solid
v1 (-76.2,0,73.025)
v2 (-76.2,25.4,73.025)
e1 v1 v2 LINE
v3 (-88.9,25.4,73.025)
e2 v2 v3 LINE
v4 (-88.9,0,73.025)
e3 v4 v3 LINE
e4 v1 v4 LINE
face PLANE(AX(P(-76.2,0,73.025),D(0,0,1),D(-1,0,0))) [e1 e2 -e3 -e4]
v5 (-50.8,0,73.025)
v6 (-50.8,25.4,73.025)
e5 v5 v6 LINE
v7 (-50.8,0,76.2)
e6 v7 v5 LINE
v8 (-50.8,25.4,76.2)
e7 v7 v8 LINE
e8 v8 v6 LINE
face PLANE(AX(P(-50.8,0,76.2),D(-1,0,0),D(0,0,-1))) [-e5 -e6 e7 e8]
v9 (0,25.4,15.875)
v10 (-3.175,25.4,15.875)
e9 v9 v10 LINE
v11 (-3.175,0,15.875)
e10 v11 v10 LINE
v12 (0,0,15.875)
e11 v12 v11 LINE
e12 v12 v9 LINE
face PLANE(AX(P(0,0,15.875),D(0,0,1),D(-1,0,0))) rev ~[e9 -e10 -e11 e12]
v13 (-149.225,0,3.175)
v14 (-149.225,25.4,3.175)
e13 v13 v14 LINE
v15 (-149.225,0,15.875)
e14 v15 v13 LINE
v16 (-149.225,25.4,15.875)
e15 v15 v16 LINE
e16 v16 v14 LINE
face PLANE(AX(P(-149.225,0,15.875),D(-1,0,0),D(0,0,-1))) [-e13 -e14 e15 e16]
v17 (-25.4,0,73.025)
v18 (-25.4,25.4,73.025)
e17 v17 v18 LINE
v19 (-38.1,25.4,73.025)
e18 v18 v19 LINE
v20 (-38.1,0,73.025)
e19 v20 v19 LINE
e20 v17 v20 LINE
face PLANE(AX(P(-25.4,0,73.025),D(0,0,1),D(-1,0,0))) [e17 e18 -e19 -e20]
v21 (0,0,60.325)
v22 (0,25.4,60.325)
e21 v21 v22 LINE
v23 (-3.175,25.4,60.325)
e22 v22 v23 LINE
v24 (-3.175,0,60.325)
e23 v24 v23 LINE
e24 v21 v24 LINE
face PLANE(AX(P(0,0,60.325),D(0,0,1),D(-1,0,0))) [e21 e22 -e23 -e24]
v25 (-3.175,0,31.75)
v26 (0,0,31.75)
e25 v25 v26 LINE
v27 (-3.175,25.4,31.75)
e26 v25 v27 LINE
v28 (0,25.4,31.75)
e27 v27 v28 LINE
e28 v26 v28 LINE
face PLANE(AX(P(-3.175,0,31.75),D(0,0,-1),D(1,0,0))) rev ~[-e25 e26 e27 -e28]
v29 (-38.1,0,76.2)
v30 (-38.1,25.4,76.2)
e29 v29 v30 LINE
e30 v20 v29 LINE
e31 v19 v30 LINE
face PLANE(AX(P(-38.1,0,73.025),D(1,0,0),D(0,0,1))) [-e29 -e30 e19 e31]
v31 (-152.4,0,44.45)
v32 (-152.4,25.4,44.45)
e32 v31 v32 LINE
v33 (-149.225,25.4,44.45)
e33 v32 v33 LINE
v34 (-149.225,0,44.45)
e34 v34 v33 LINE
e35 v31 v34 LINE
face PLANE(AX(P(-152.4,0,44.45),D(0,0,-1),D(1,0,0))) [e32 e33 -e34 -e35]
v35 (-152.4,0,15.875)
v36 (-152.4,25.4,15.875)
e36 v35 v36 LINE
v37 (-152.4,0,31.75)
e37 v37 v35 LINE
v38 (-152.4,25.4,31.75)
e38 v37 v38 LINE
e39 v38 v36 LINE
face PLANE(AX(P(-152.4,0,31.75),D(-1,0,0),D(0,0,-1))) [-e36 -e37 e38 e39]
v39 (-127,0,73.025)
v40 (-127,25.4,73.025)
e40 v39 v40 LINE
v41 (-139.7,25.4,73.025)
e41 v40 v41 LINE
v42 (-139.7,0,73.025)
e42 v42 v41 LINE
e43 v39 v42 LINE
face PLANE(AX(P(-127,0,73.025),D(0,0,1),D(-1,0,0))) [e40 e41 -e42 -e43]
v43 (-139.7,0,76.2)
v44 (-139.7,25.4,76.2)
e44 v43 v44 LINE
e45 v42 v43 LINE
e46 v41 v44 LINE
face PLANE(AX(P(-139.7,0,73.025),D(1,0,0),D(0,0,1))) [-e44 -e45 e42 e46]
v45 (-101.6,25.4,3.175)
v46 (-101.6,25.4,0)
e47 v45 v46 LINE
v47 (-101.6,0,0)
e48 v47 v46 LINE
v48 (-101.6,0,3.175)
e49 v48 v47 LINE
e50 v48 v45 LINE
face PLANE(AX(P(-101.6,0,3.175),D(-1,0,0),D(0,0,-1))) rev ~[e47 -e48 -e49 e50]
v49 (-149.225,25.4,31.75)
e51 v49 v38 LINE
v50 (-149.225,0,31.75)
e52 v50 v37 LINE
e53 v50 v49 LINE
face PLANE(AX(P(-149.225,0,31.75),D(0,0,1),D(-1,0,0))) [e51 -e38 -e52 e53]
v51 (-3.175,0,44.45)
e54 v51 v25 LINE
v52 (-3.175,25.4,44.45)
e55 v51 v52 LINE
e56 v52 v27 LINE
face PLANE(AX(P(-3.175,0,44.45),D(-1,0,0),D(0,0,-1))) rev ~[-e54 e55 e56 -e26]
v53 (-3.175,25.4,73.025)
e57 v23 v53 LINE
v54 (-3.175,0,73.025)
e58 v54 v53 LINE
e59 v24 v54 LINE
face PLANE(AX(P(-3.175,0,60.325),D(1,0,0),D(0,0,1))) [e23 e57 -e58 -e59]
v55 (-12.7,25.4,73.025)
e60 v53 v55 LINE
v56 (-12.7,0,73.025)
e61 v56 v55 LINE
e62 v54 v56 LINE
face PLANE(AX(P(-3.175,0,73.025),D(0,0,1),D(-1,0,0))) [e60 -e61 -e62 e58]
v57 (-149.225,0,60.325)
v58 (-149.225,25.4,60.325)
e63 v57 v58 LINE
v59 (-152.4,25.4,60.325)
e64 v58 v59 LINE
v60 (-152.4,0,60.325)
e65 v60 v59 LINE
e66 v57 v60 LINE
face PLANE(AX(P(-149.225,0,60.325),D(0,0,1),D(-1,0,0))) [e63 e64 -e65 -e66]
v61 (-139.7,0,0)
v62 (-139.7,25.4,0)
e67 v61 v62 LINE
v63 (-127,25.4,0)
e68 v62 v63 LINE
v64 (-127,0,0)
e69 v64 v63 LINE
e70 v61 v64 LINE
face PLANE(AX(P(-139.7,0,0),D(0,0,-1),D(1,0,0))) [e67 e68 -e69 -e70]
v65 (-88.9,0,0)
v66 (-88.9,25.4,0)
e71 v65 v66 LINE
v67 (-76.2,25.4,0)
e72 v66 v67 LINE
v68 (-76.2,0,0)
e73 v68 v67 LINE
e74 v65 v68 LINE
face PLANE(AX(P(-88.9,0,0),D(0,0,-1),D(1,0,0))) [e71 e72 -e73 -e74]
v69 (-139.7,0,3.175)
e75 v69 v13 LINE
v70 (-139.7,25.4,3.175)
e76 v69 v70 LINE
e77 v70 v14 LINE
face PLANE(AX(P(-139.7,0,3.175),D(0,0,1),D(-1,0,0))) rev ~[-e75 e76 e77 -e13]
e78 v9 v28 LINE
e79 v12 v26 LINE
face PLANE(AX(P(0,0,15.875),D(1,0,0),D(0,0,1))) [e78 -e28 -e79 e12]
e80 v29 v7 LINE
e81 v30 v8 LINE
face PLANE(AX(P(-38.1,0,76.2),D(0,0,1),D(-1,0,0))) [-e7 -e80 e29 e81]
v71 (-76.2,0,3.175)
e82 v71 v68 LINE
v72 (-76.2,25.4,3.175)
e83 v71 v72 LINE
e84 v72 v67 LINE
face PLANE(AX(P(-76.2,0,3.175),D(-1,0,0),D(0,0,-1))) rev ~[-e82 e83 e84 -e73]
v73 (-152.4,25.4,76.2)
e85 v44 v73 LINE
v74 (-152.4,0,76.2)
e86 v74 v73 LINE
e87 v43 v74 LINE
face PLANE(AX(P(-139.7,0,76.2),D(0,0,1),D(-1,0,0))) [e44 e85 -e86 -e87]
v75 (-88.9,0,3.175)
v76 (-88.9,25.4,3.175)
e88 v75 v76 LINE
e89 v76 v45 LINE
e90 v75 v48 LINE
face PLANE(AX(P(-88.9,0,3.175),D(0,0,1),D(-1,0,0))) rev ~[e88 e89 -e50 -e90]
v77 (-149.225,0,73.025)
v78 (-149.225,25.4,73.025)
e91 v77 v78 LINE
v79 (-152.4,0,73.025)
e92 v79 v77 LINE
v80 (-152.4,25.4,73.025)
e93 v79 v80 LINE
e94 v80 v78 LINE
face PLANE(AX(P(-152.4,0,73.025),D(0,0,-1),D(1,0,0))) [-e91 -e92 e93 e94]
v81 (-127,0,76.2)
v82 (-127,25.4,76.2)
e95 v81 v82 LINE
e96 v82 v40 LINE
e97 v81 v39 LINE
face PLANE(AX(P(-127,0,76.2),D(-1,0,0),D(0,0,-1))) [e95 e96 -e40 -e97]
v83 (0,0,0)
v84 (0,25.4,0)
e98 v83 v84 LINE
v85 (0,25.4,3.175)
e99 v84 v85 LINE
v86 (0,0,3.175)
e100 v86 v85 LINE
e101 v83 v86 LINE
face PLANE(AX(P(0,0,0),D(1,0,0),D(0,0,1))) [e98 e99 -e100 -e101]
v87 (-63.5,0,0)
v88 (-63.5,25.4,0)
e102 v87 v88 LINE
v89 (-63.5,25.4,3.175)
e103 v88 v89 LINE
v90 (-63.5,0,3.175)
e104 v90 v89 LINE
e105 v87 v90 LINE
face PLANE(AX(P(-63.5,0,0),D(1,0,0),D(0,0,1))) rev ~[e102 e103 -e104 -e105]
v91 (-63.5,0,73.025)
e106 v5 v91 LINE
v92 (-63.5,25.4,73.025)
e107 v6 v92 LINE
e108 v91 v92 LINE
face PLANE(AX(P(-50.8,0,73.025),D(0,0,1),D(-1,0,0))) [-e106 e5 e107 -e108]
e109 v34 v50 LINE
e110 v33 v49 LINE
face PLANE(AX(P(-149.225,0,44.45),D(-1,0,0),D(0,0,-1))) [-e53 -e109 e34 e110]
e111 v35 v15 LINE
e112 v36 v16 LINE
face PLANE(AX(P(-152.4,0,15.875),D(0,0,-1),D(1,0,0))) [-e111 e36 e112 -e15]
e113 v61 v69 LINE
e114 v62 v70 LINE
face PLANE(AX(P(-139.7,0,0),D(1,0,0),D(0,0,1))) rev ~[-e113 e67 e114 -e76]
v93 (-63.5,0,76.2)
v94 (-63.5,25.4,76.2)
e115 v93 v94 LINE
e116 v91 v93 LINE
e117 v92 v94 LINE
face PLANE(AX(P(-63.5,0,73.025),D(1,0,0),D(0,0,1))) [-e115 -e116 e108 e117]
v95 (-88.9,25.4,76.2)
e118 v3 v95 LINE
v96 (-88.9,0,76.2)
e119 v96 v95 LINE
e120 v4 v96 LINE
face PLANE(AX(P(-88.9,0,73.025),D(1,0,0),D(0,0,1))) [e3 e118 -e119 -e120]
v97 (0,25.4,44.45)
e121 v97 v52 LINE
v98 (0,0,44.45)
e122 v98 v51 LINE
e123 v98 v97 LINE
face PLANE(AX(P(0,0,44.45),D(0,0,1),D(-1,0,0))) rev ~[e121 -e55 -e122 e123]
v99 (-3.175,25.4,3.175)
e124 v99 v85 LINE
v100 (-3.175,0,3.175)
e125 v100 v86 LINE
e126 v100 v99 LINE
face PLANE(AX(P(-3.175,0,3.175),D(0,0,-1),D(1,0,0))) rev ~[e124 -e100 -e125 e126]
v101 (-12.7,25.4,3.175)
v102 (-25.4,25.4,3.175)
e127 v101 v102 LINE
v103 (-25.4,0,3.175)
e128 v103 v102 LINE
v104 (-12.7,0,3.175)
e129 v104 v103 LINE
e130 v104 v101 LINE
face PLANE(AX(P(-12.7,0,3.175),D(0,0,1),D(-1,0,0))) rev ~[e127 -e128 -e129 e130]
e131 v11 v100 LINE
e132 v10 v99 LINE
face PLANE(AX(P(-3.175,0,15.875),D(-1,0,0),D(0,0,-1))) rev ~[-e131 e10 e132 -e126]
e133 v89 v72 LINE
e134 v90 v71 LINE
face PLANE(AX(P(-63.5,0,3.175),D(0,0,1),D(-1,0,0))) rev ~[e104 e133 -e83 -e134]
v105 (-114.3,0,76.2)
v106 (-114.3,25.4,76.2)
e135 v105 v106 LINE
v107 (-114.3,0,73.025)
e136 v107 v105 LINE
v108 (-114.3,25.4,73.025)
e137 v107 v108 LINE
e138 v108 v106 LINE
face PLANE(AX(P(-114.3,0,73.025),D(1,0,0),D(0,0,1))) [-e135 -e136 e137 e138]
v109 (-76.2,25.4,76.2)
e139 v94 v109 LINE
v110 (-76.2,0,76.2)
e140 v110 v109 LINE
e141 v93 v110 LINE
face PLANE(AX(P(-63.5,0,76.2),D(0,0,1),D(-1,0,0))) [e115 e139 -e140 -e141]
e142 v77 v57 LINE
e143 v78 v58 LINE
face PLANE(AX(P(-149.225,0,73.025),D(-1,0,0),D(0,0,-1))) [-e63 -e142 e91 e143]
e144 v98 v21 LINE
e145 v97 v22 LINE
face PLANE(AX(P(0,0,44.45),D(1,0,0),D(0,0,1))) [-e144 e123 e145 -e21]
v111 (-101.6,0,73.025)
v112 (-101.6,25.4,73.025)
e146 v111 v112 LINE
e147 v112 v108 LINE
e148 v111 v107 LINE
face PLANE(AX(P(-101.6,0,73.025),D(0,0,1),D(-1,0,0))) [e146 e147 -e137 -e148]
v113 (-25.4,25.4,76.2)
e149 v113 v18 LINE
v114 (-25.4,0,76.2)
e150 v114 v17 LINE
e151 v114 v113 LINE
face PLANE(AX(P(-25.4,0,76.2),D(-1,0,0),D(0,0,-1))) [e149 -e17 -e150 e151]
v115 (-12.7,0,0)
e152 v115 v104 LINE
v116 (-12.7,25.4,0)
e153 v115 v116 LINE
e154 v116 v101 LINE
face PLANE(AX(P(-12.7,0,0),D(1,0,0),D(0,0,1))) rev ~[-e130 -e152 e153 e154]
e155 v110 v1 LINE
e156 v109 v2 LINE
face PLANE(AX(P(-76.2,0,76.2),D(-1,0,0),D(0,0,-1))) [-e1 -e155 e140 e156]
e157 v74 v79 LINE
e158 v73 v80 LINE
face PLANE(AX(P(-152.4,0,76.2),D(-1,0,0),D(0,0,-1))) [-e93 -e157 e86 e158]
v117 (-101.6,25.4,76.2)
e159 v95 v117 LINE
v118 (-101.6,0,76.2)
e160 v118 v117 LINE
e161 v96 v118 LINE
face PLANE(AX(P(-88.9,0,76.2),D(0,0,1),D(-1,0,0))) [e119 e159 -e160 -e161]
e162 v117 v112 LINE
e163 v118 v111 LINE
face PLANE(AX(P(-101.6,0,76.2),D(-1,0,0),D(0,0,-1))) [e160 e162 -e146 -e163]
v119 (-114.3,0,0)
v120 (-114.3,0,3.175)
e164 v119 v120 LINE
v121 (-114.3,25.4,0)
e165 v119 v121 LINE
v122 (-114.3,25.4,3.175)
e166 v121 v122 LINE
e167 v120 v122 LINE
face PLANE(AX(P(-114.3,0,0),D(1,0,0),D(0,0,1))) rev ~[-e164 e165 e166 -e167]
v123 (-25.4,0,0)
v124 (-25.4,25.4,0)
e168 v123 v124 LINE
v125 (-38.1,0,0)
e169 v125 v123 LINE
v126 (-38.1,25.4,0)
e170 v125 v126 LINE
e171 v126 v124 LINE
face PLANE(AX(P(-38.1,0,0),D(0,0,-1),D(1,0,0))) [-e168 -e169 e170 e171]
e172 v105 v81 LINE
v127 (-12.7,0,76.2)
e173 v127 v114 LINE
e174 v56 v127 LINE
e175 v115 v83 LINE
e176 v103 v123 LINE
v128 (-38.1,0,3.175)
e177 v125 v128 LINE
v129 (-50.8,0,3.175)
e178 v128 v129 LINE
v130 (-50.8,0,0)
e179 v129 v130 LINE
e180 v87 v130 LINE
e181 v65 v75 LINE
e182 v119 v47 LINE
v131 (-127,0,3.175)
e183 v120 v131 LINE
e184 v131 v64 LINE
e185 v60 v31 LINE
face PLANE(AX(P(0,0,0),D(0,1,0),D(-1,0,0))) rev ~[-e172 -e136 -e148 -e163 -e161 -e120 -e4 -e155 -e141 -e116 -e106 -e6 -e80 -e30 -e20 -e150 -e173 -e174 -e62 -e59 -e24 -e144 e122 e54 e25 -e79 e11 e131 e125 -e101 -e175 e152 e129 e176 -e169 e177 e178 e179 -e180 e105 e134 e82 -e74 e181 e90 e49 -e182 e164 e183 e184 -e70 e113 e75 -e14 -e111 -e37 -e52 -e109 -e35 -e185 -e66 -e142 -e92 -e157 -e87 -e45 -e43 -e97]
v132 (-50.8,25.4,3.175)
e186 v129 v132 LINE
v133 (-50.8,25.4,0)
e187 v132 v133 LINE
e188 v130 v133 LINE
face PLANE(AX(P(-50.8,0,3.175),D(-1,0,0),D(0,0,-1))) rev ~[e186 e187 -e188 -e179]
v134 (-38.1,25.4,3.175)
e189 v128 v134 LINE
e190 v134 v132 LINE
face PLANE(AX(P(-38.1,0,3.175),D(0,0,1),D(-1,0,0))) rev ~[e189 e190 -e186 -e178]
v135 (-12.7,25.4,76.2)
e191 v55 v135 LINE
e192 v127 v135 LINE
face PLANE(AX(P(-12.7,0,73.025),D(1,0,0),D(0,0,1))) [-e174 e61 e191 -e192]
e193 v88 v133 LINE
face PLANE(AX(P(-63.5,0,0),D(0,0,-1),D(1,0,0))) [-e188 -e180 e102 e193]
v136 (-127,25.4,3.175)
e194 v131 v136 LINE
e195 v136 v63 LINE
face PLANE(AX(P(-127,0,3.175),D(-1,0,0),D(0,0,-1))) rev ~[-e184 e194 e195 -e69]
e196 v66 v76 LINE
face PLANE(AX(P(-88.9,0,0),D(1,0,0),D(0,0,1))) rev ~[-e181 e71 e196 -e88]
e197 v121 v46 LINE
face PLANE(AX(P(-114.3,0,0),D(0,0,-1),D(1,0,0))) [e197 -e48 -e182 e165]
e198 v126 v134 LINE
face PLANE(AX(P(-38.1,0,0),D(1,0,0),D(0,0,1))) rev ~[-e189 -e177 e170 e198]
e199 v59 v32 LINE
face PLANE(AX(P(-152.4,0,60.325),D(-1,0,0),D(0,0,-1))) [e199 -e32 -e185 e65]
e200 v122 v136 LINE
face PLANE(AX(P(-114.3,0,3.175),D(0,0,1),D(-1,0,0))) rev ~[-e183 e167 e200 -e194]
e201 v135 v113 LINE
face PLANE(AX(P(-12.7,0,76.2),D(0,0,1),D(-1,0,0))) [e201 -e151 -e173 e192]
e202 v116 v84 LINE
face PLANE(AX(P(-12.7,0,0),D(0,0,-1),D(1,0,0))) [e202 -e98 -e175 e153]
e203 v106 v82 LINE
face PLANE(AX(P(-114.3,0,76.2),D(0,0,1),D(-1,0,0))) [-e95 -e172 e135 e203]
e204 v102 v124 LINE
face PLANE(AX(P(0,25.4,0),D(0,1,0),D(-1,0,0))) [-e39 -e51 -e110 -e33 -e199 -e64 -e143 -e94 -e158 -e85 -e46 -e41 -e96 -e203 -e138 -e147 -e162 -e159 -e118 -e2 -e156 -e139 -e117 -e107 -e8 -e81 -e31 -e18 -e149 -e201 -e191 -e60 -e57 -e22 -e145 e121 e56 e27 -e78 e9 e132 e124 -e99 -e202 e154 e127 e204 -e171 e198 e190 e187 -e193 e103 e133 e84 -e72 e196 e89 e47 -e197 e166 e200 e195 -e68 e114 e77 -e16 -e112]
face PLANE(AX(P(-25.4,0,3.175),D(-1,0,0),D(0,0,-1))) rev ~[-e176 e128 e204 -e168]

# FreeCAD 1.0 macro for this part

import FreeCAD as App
import Part
import Sketcher
from FreeCAD import Vector
Q = App.Units.Quantity


def add_polygon(sketch, points):
    """Adds a closed chain of lines whose ends are joined by coincident constraints."""
    first, n = sketch.GeometryCount, len(points)
    for a, b in zip(points, points[1:] + points[:1]):
        sketch.addGeometry(Part.LineSegment(App.Vector(*a, 0), App.Vector(*b, 0)), False)
    for i in range(n):
        sketch.addConstraint(Sketcher.Constraint("Coincident", first + i, 2, first + (i + 1) % n, 1))

doc = App.newDocument("Part")
body = doc.addObject("PartDesign::Body", "Body")

sketch1 = doc.addObject("Sketcher::SketchObject", "Sketch")
body.addObject(sketch1)
sketch1.AttachmentSupport = (doc.XZ_Plane, [""])
sketch1.MapMode = "FlatFace"
add_polygon(sketch1, [(0, 3.2), (0, 0), (-12.7, 0), (-12.7, 3.2), (-25.4, 3.2), (-25.4, 0), (-38.1, 0), (-38.1, 3.2), (-50.8, 3.2), (-50.8, 0), (-63.5, 0), (-63.5, 3.2), (-76.2, 3.2), (-76.2, 0), (-88.9, 0), (-88.9, 3.2), (-101.6, 3.2), (-101.6, 0), (-114.3, 0), (-114.3, 3.2), (-127, 3.2), (-127, 0), (-139.7, 0), (-139.7, 3.2), (-149.2, 3.2), (-149.2, 15.9), (-152.4, 15.9), (-152.4, 31.8), (-149.2, 31.8), (-149.2, 44.5), (-152.4, 44.5), (-152.4, 60.3), (-149.2, 60.3), (-149.2, 73), (-152.4, 73), (-152.4, 76.2), (-139.7, 76.2), (-139.7, 73), (-127, 73), (-127, 76.2), (-114.3, 76.2), (-114.3, 73), (-101.6, 73), (-101.6, 76.2), (-88.9, 76.2), (-88.9, 73), (-76.2, 73), (-76.2, 76.2), (-63.5, 76.2), (-63.5, 73), (-50.8, 73), (-50.8, 76.2), (-38.1, 76.2), (-38.1, 73), (-25.4, 73), (-25.4, 76.2), (-12.7, 76.2), (-12.7, 73), (-3.2, 73), (-3.2, 60.3), (0, 60.3), (0, 44.5), (-3.2, 44.5), (-3.2, 31.8), (0, 31.8), (0, 15.9), (-3.2, 15.9), (-3.2, 3.2)])
sketch1.addConstraint([
    Sketcher.Constraint("Vertical", 0),
    Sketcher.Constraint("Horizontal", 1),
    Sketcher.Constraint("Vertical", 2),
    Sketcher.Constraint("Horizontal", 3),
    Sketcher.Constraint("Vertical", 4),
    Sketcher.Constraint("Horizontal", 5),
    Sketcher.Constraint("Vertical", 6),
    Sketcher.Constraint("Horizontal", 7),
    Sketcher.Constraint("Vertical", 8),
    Sketcher.Constraint("Horizontal", 9),
    Sketcher.Constraint("Vertical", 10),
    Sketcher.Constraint("Horizontal", 11),
    Sketcher.Constraint("Vertical", 12),
    Sketcher.Constraint("Horizontal", 13),
    Sketcher.Constraint("Vertical", 14),
    Sketcher.Constraint("Horizontal", 15),
    Sketcher.Constraint("Vertical", 16),
    Sketcher.Constraint("Horizontal", 17),
    Sketcher.Constraint("Vertical", 18),
    Sketcher.Constraint("Horizontal", 19),
    Sketcher.Constraint("Vertical", 20),
    Sketcher.Constraint("Horizontal", 21),
    Sketcher.Constraint("Vertical", 22),
    Sketcher.Constraint("Horizontal", 23),
    Sketcher.Constraint("Vertical", 24),
    Sketcher.Constraint("Horizontal", 25),
    Sketcher.Constraint("Vertical", 26),
    Sketcher.Constraint("Horizontal", 27),
    Sketcher.Constraint("Vertical", 28),
    Sketcher.Constraint("Horizontal", 29),
    Sketcher.Constraint("Vertical", 30),
    Sketcher.Constraint("Horizontal", 31),
    Sketcher.Constraint("Vertical", 32),
    Sketcher.Constraint("Horizontal", 33),
    Sketcher.Constraint("Vertical", 34),
    Sketcher.Constraint("Horizontal", 35),
    Sketcher.Constraint("Vertical", 36),
    Sketcher.Constraint("Horizontal", 37),
    Sketcher.Constraint("Vertical", 38),
    Sketcher.Constraint("Horizontal", 39),
    Sketcher.Constraint("Vertical", 40),
    Sketcher.Constraint("Horizontal", 41),
    Sketcher.Constraint("Vertical", 42),
    Sketcher.Constraint("Horizontal", 43),
    Sketcher.Constraint("Vertical", 44),
    Sketcher.Constraint("Horizontal", 45),
    Sketcher.Constraint("Vertical", 46),
    Sketcher.Constraint("Horizontal", 47),
    Sketcher.Constraint("Vertical", 48),
    Sketcher.Constraint("Horizontal", 49),
    Sketcher.Constraint("Vertical", 50),
    Sketcher.Constraint("Horizontal", 51),
    Sketcher.Constraint("Vertical", 52),
    Sketcher.Constraint("Horizontal", 53),
    Sketcher.Constraint("Vertical", 54),
    Sketcher.Constraint("Horizontal", 55),
    Sketcher.Constraint("Vertical", 56),
    Sketcher.Constraint("Horizontal", 57),
    Sketcher.Constraint("Vertical", 58),
    Sketcher.Constraint("Horizontal", 59),
    Sketcher.Constraint("Vertical", 60),
    Sketcher.Constraint("Horizontal", 61),
    Sketcher.Constraint("Vertical", 62),
    Sketcher.Constraint("Horizontal", 63),
    Sketcher.Constraint("Vertical", 64),
    Sketcher.Constraint("Horizontal", 65),
    Sketcher.Constraint("Vertical", 66),
    Sketcher.Constraint("Horizontal", 67),
    Sketcher.Constraint("Coincident", 0, 2, -1, 1),
    Sketcher.Constraint("PointOnObject", 4, 2, -1),
    Sketcher.Constraint("PointOnObject", 8, 2, -1),
    Sketcher.Constraint("PointOnObject", 12, 2, -1),
    Sketcher.Constraint("PointOnObject", 16, 2, -1),
    Sketcher.Constraint("PointOnObject", 20, 2, -1),
    Sketcher.Constraint("PointOnObject", 59, 2, -2),
    Sketcher.Constraint("PointOnObject", 63, 2, -2),
    Sketcher.Constraint("Horizontal", 3, 2, 6, 2),
    Sketcher.Constraint("Horizontal", 7, 2, 10, 2),
    Sketcher.Constraint("Horizontal", 11, 2, 14, 2),
    Sketcher.Constraint("Horizontal", 15, 2, 18, 2),
    Sketcher.Constraint("Horizontal", 19, 2, 22, 2),
    Sketcher.Constraint("Horizontal", 33, 2, 36, 2),
    Sketcher.Constraint("Horizontal", 35, 2, 38, 2),
    Sketcher.Constraint("Horizontal", 37, 2, 40, 2),
    Sketcher.Constraint("Horizontal", 39, 2, 42, 2),
    Sketcher.Constraint("Horizontal", 41, 2, 44, 2),
    Sketcher.Constraint("Horizontal", 43, 2, 46, 2),
    Sketcher.Constraint("Horizontal", 45, 2, 48, 2),
    Sketcher.Constraint("Horizontal", 47, 2, 50, 2),
    Sketcher.Constraint("Horizontal", 49, 2, 52, 2),
    Sketcher.Constraint("Horizontal", 51, 2, 54, 2),
    Sketcher.Constraint("Horizontal", 53, 2, 56, 2),
    Sketcher.Constraint("Horizontal", 31, 2, 58, 2),
    Sketcher.Constraint("Horizontal", 29, 2, 60, 2),
    Sketcher.Constraint("Horizontal", 27, 2, 62, 2),
    Sketcher.Constraint("Horizontal", 25, 2, 64, 2),
    Sketcher.Constraint("Horizontal", 23, 2, 66, 2),
    Sketcher.Constraint("Vertical", 24, 2, 27, 2),
    Sketcher.Constraint("Vertical", 26, 2, 29, 2),
    Sketcher.Constraint("Vertical", 28, 2, 31, 2),
    Sketcher.Constraint("Vertical", 30, 2, 33, 2),
    Sketcher.Constraint("Vertical", 22, 2, 35, 2),
    Sketcher.Constraint("Vertical", 20, 2, 37, 2),
    Sketcher.Constraint("Vertical", 18, 2, 39, 2),
    Sketcher.Constraint("Vertical", 16, 2, 41, 2),
    Sketcher.Constraint("Vertical", 14, 2, 43, 2),
    Sketcher.Constraint("Vertical", 12, 2, 45, 2),
    Sketcher.Constraint("Vertical", 10, 2, 47, 2),
    Sketcher.Constraint("Vertical", 8, 2, 49, 2),
    Sketcher.Constraint("Vertical", 6, 2, 51, 2),
    Sketcher.Constraint("Vertical", 4, 2, 53, 2),
    Sketcher.Constraint("Vertical", 2, 2, 55, 2),
    Sketcher.Constraint("Vertical", 58, 2, 61, 2),
    Sketcher.Constraint("Vertical", 62, 2, 65, 2),
    Sketcher.Constraint("Equal", 1, 3),
    Sketcher.Constraint("Equal", 3, 5),
    Sketcher.Constraint("Equal", 5, 7),
    Sketcher.Constraint("Equal", 7, 9),
    Sketcher.Constraint("Equal", 9, 11),
    Sketcher.Constraint("Equal", 11, 13),
    Sketcher.Constraint("Equal", 13, 15),
    Sketcher.Constraint("Equal", 15, 17),
    Sketcher.Constraint("Equal", 17, 19),
    Sketcher.Constraint("Equal", 19, 21),
    Sketcher.Constraint("Equal", 21, 35),
    Sketcher.Constraint("Equal", 23, 57),
    Sketcher.Constraint("Equal", 67, 0),
    Sketcher.Constraint("Equal", 55, 24),
    Sketcher.Constraint("Equal", 24, 28),
    Sketcher.Constraint("Equal", 26, 30),
    Sketcher.Constraint("Equal", 28, 32),
    Sketcher.Constraint("Equal", 22, 34),
    Sketcher.Constraint("DistanceX", 1, 2, 1, 1, Q("0.5 in")),
    Sketcher.Constraint("DistanceY", -1, 1, 34, 2, Q("3 in")),
    Sketcher.Constraint("DistanceX", 25, 2, 25, 1, Q("0.125 in")),
])
pad1 = doc.addObject("PartDesign::Pad", "Pad")
body.addObject(pad1)
pad1.Profile = sketch1
pad1.Length = Q("1 in")
pad1.Reversed = True

doc.recompute()
